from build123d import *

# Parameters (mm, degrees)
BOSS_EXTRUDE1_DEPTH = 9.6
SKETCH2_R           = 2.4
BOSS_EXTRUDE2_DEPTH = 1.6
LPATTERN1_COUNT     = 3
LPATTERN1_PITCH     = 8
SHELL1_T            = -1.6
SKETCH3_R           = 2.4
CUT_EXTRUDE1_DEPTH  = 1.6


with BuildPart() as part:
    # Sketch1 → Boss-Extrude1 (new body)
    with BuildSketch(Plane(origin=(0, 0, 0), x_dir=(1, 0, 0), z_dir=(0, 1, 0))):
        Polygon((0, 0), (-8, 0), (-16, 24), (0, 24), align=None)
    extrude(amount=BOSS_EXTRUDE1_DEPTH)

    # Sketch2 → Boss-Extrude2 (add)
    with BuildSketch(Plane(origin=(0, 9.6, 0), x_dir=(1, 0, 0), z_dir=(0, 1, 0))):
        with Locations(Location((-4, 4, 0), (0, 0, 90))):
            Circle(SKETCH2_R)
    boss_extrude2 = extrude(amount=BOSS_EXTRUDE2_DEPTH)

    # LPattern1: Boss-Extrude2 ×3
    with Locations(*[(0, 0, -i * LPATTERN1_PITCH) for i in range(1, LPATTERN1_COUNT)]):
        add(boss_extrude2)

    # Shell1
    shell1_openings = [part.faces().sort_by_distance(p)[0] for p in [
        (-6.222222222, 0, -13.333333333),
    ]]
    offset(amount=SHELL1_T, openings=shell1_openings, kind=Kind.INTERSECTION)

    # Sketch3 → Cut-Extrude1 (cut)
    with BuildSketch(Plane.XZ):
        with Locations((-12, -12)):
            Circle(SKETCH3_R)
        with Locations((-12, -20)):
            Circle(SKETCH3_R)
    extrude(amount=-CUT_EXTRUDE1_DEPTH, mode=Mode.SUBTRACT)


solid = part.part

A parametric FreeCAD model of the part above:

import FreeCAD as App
import Part
import Sketcher

V = App.Vector
Q = App.Units.Quantity


def faces_at(feature, points):
    """Names of the faces that lie closest to the given points."""
    faces = feature.Shape.Faces
    near = lambda p: min(range(len(faces)), key=lambda i: faces[i].distToShape(Part.Vertex(*p))[0])
    return sorted({f"Face{near(p) + 1}" for p in points})

doc = App.newDocument("Part")
params = doc.addObject("Spreadsheet::Sheet", "Params")
for row, (alias, value) in enumerate([
    ("sketch1_width", "8 mm"),
    ("sketch1_width2", "16 mm"),
    ("sketch1_height", "24 mm"),
    ("pad1_length", "9.6 mm"),
    ("sketch2_diameter", "4.8 mm"),
    ("pad2_length", "1.6 mm"),
    ("linearpattern_pitch", "8 mm"),
    ("thickness_wall", "1.6 mm"),
    ("sketch3_diameter", "4.8 mm"),
    ("pocket1_length", "1.6 mm"),
], start=1):
    params.set(f"A{row}", alias)
    params.set(f"B{row}", "=" + value)
    params.setAlias(f"B{row}", alias)

body = doc.addObject("PartDesign::Body", "Body")

sketch1 = doc.addObject("Sketcher::SketchObject", "Sketch")
body.addObject(sketch1)
sketch1.AttachmentSupport = (doc.XZ_Plane, [""])
sketch1.MapMode = "FlatFace"
sketch1.addGeometry([
    Part.LineSegment(V(-8, 0, 0), V(0, 0, 0)),
    Part.LineSegment(V(0, 0, 0), V(0, -24, 0)),
    Part.LineSegment(V(0, -24, 0), V(-16, -24, 0)),
    Part.LineSegment(V(-16, -24, 0), V(-8, 0, 0)),
], False)
sketch1.addConstraint([
    Sketcher.Constraint("Coincident", 0, 2, 1, 1),
    Sketcher.Constraint("Coincident", 1, 2, 2, 1),
    Sketcher.Constraint("Coincident", 2, 2, 3, 1),
    Sketcher.Constraint("Coincident", 3, 2, 0, 1),
    Sketcher.Constraint("Horizontal", 0),
    Sketcher.Constraint("Vertical", 1),
    Sketcher.Constraint("Horizontal", 2),
    Sketcher.Constraint("Coincident", 0, 2, -1, 1),
    Sketcher.Constraint("DistanceX", 0, 1, 0, 2, Q("8 mm")),
    Sketcher.Constraint("DistanceX", 2, 2, 2, 1, Q("16 mm")),
    Sketcher.Constraint("DistanceY", 1, 2, 1, 1, Q("24 mm")),
])
sketch1.setExpression("Constraints[8]", "Params.sketch1_width")
sketch1.setExpression("Constraints[9]", "Params.sketch1_width2")
sketch1.setExpression("Constraints[10]", "Params.sketch1_height")
pad1 = doc.addObject("PartDesign::Pad", "Pad")
body.addObject(pad1)
pad1.Profile = sketch1
pad1.setExpression("Length", "Params.pad1_length")
pad1.Reversed = True

sketch2 = doc.addObject("Sketcher::SketchObject", "Sketch001")
body.addObject(sketch2)
sketch2.AttachmentSupport = (doc.XZ_Plane, [""])
sketch2.MapMode = "FlatFace"
sketch2.AttachmentOffset = App.Placement(V(0, 0, -9.6), App.Rotation())
sketch2.addGeometry(Part.Circle(V(-4, -4, 0), V(0, 0, 1), 2.4), False)
sketch2.addConstraint([
    Sketcher.Constraint("Diameter", 0, Q("4.8 mm")),
    Sketcher.Constraint("DistanceX", 0, 3, -1, 1, Q("4 mm")),
    Sketcher.Constraint("DistanceY", 0, 3, -1, 1, Q("4 mm")),
])
sketch2.setExpression("Constraints[0]", "Params.sketch2_diameter")
pad2 = doc.addObject("PartDesign::Pad", "Pad001")
body.addObject(pad2)
pad2.Profile = sketch2
pad2.setExpression("Length", "Params.pad2_length")
pad2.Reversed = True
doc.recompute()

linearpattern = doc.addObject("PartDesign::LinearPattern", "LinearPattern")
body.addObject(linearpattern)
linearpattern.Originals = [pad2]
linearpattern.Direction = (doc.Z_Axis, [""])
linearpattern.Mode = "offset"
linearpattern.setExpression("Offset", "Params.linearpattern_pitch")
linearpattern.Occurrences = 3
linearpattern.Reversed = True
body.Tip = linearpattern
doc.recompute()

thickness = doc.addObject("PartDesign::Thickness", "Thickness")
body.addObject(thickness)
thickness.Base = (linearpattern, faces_at(linearpattern, [(-8, 0, -12)]))
thickness.setExpression("Value", "Params.thickness_wall")
thickness.Reversed = True
thickness.Join = "Intersection"

sketch3 = doc.addObject("Sketcher::SketchObject", "Sketch002")
body.addObject(sketch3)
sketch3.AttachmentSupport = (doc.XZ_Plane, [""])
sketch3.MapMode = "FlatFace"
sketch3.addGeometry([
    Part.Circle(V(-12, -12, 0), V(0, 0, 1), 2.4),
    Part.Circle(V(-12, -20, 0), V(0, 0, 1), 2.4),
], False)
sketch3.addConstraint([
    Sketcher.Constraint("Equal", 0, 1),
    Sketcher.Constraint("Vertical", 0, 3, 1, 3),
    Sketcher.Constraint("Diameter", 0, Q("4.8 mm")),
    Sketcher.Constraint("DistanceX", 0, 3, -1, 1, Q("12 mm")),
    Sketcher.Constraint("DistanceY", 0, 3, -1, 1, Q("12 mm")),
    Sketcher.Constraint("DistanceY", 1, 3, -1, 1, Q("20 mm")),
])
sketch3.setExpression("Constraints[2]", "Params.sketch3_diameter")
pocket1 = doc.addObject("PartDesign::Pocket", "Pocket")
body.addObject(pocket1)
pocket1.Profile = sketch3
pocket1.setExpression("Length", "Params.pocket1_length")

doc.recompute()
